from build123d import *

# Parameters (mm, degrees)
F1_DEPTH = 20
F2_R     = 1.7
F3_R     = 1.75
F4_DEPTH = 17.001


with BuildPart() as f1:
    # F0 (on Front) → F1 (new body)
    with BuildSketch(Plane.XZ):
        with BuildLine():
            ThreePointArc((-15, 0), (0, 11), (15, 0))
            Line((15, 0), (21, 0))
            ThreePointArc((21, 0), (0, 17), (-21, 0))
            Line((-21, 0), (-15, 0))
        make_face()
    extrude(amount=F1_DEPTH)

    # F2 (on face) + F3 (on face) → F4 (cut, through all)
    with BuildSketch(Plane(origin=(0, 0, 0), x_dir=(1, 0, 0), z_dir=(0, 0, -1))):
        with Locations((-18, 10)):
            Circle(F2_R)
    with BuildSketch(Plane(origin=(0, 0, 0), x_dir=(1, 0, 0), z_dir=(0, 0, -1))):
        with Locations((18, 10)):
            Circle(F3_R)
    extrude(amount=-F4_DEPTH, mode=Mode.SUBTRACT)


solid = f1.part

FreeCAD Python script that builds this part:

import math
import FreeCAD as App
import Part
import Sketcher
Q = App.Units.Quantity

doc = App.newDocument("Part")
params = doc.addObject("Spreadsheet::Sheet", "Params")
for row, (alias, value) in enumerate([
    ("sketch1_width", "6 mm"),
    ("pad1_length", "20 mm"),
    ("sketch2_diameter", "3.4 mm"),
    ("sketch2_diameter2", "3.5 mm"),
], start=1):
    params.set(f"A{row}", alias)
    params.set(f"B{row}", "=" + value)
    params.setAlias(f"B{row}", alias)

body = doc.addObject("PartDesign::Body", "Body")

# Sketch on XZ plane
sketch1 = body.newObject("Sketcher::SketchObject", "Sketch")
sketch1.AttachmentSupport = (doc.getObject("XZ_Plane"), [""])
sketch1.MapMode = "FlatFace"
sketch1.addGeometry(Part.ArcOfCircle(Part.Circle(App.Vector(0, -5, 0), App.Vector(0, 0, 1), 16), math.radians(17), math.radians(163)), False)
sketch1.addGeometry(Part.LineSegment(App.Vector(15, 0, 0), App.Vector(21, 0, 0)), False)
sketch1.addGeometry(Part.ArcOfCircle(Part.Circle(App.Vector(0, -4, 0), App.Vector(0, 0, 1), 21), math.radians(12), math.radians(168)), False)
sketch1.addGeometry(Part.LineSegment(App.Vector(-21, 0, 0), App.Vector(-15, 0, 0)), False)
sketch1.addConstraint(Sketcher.Constraint("Coincident", 0, 1, 1, 1))
sketch1.addConstraint(Sketcher.Constraint("Coincident", 1, 2, 2, 1))
sketch1.addConstraint(Sketcher.Constraint("Coincident", 2, 2, 3, 1))
sketch1.addConstraint(Sketcher.Constraint("Coincident", 3, 2, 0, 2))
sketch1.addConstraint(Sketcher.Constraint("Horizontal", 1))
sketch1.addConstraint(Sketcher.Constraint("Horizontal", 3))
sketch1.addConstraint(Sketcher.Constraint("Symmetric", 1, 2, 2, 2, -1, 1))
sketch1.addConstraint(Sketcher.Constraint("Symmetric", 0, 1, 3, 2, -2))
sketch1.addConstraint(Sketcher.Constraint("DistanceX", 1, 1, 1, 2, Q("6 mm")))
sketch1.addConstraint(Sketcher.Constraint("DistanceX", -1, 1, 0, 1, Q("15 mm")))
sketch1.addConstraint(Sketcher.Constraint("Radius", 2, Q("21.470588 mm")))
sketch1.addConstraint(Sketcher.Constraint("Radius", 0, Q("15.727273 mm")))
sketch1.setExpression("Constraints[8]", "Params.sketch1_width")
pad1 = body.newObject("PartDesign::Pad", "Pad")
pad1.Profile = sketch1
pad1.setExpression("Length", "Params.pad1_length")

# Sketch on XY plane
sketch2 = body.newObject("Sketcher::SketchObject", "Sketch001")
sketch2.AttachmentSupport = (doc.getObject("XY_Plane"), [""])
sketch2.MapMode = "FlatFace"
sketch2.addGeometry(Part.Circle(App.Vector(-18, -10, 0), App.Vector(0, 0, 1), 1.7), False)
sketch2.addGeometry(Part.Circle(App.Vector(18, -10, 0), App.Vector(0, 0, 1), 1.8), False)
sketch2.addConstraint(Sketcher.Constraint("Symmetric", 0, 3, 1, 3, -2))
sketch2.addConstraint(Sketcher.Constraint("Diameter", 0, Q("3.4 mm")))
sketch2.addConstraint(Sketcher.Constraint("Diameter", 1, Q("3.5 mm")))
sketch2.addConstraint(Sketcher.Constraint("DistanceX", 0, 3, -1, 1, Q("18 mm")))
sketch2.addConstraint(Sketcher.Constraint("DistanceY", 0, 3, -1, 1, Q("10 mm")))
sketch2.setExpression("Constraints[1]", "Params.sketch2_diameter")
sketch2.setExpression("Constraints[2]", "Params.sketch2_diameter2")
pocket1 = body.newObject("PartDesign::Pocket", "Pocket")
pocket1.Profile = sketch2
pocket1.Type = "ThroughAll"
pocket1.Reversed = True

doc.recompute()
